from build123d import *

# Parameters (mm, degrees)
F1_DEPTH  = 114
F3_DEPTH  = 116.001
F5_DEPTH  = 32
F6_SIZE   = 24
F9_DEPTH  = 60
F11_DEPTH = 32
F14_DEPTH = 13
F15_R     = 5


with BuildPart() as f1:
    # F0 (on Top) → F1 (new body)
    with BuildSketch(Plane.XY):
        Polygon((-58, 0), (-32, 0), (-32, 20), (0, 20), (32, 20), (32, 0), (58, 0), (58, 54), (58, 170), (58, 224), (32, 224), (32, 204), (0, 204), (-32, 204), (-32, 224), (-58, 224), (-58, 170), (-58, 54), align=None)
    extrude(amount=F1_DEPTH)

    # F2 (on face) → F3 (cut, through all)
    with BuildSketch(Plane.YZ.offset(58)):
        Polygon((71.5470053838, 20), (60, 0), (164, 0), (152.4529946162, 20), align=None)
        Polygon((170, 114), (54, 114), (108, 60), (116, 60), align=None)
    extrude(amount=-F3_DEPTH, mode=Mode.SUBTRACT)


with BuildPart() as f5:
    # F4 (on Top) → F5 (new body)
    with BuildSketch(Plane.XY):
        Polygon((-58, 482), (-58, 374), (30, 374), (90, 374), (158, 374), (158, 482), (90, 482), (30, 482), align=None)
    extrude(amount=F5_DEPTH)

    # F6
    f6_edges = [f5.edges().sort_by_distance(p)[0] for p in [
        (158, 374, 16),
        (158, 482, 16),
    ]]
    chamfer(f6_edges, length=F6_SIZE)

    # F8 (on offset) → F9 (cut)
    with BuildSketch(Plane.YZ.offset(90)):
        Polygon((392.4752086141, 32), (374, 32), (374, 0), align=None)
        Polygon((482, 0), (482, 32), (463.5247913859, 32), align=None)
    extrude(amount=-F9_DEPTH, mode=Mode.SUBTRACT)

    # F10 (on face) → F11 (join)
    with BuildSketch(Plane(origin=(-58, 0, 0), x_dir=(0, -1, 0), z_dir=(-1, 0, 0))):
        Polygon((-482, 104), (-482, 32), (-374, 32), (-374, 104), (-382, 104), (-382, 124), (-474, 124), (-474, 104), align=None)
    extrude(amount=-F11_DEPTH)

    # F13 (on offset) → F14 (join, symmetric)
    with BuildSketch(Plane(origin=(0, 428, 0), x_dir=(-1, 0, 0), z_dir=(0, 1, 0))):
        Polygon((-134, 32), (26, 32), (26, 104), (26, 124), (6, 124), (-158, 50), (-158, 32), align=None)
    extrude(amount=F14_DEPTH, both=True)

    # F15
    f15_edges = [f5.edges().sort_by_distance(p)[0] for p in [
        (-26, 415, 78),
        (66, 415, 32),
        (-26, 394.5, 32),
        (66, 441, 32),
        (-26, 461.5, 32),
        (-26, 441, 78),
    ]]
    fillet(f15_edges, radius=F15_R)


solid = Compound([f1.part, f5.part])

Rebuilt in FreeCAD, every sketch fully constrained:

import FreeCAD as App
import Part
import Sketcher
Q = App.Units.Quantity


def edges_at(feature, points):
    """Names of the edges that pass closest to the given points."""
    edges = feature.Shape.Edges
    near = lambda p: min(range(len(edges)), key=lambda i: edges[i].distToShape(Part.Vertex(*p))[0])
    return sorted({f"Edge{near(p) + 1}" for p in points})


def add_polygon(sketch, points):
    """Adds a closed chain of lines whose ends are joined by coincident constraints."""
    first, n = sketch.GeometryCount, len(points)
    for a, b in zip(points, points[1:] + points[:1]):
        sketch.addGeometry(Part.LineSegment(App.Vector(*a, 0), App.Vector(*b, 0)), False)
    for i in range(n):
        sketch.addConstraint(Sketcher.Constraint("Coincident", first + i, 2, first + (i + 1) % n, 1))

doc = App.newDocument("Part")
params = doc.addObject("Spreadsheet::Sheet", "Params")
for row, (alias, value) in enumerate([
    ("sketch1_width", "26 mm"),
    ("sketch1_width2", "64 mm"),
    ("sketch1_height", "20 mm"),
    ("sketch1_height2", "224 mm"),
    ("pad1_length", "114 mm"),
    ("sketch2_width", "104 mm"),
    ("sketch2_width2", "116 mm"),
    ("sketch2_width3", "8 mm"),
    ("sketch3_width", "216 mm"),
    ("sketch3_height", "108 mm"),
    ("pad2_length", "32 mm"),
    ("chamfer_size", "24 mm"),
    ("sketch4_height", "32 mm"),
    ("pocket2_length", "60 mm"),
    ("sketch5_width", "108 mm"),
    ("sketch5_width2", "8 mm"),
    ("sketch5_height", "72 mm"),
    ("sketch5_height2", "20 mm"),
    ("pad3_length", "32 mm"),
    ("sketch6_width", "20 mm"),
    ("sketch6_width2", "184 mm"),
    ("sketch6_height", "92 mm"),
    ("sketch6_height2", "18 mm"),
    ("pad4_length", "26 mm"),
    ("fillet_radius", "5 mm"),
], start=1):
    params.set(f"A{row}", alias)
    params.set(f"B{row}", "=" + value)
    params.setAlias(f"B{row}", alias)

body = doc.addObject("PartDesign::Body", "Body")

# Sketch on XY plane
sketch1 = body.newObject("Sketcher::SketchObject", "Sketch")
sketch1.AttachmentSupport = (doc.getObject("XY_Plane"), [""])
sketch1.MapMode = "FlatFace"
add_polygon(sketch1, [(-58, 0), (-32, 0), (-32, 20), (32, 20), (32, 0), (58, 0), (58, 224), (32, 224), (32, 204), (-32, 204), (-32, 224), (-58, 224)])  # lines 0-11
sketch1.addConstraint(Sketcher.Constraint("Horizontal", 0))
sketch1.addConstraint(Sketcher.Constraint("Vertical", 1))
sketch1.addConstraint(Sketcher.Constraint("Horizontal", 2))
sketch1.addConstraint(Sketcher.Constraint("Vertical", 3))
sketch1.addConstraint(Sketcher.Constraint("Horizontal", 4))
sketch1.addConstraint(Sketcher.Constraint("Vertical", 5))
sketch1.addConstraint(Sketcher.Constraint("Horizontal", 6))
sketch1.addConstraint(Sketcher.Constraint("Vertical", 7))
sketch1.addConstraint(Sketcher.Constraint("Horizontal", 8))
sketch1.addConstraint(Sketcher.Constraint("Vertical", 9))
sketch1.addConstraint(Sketcher.Constraint("Horizontal", 10))
sketch1.addConstraint(Sketcher.Constraint("Vertical", 11))
sketch1.addConstraint(Sketcher.Constraint("Symmetric", 0, 2, 3, 2, -1, 1))
sketch1.addConstraint(Sketcher.Constraint("Symmetric", 6, 2, 9, 2, -2))
sketch1.addConstraint(Sketcher.Constraint("Symmetric", 4, 2, 11, 2, -2))
sketch1.addConstraint(Sketcher.Constraint("Vertical", 3, 2, 6, 2))
sketch1.addConstraint(Sketcher.Constraint("Equal", 3, 7))
sketch1.addConstraint(Sketcher.Constraint("DistanceX", 0, 1, 0, 2, 26.0))
sketch1.addConstraint(Sketcher.Constraint("DistanceX", 2, 1, 2, 2, 64.0))
sketch1.addConstraint(Sketcher.Constraint("DistanceY", 1, 1, 1, 2, 20.0))
sketch1.addConstraint(Sketcher.Constraint("DistanceY", 5, 1, 5, 2, 224.0))
sketch1.setExpression("Constraints[29]", "Params.sketch1_width")
sketch1.setExpression("Constraints[30]", "Params.sketch1_width2")
sketch1.setExpression("Constraints[31]", "Params.sketch1_height")
sketch1.setExpression("Constraints[32]", "Params.sketch1_height2")
pad1 = body.newObject("PartDesign::Pad", "Pad")
pad1.Profile = sketch1
pad1.setExpression("Length", "Params.pad1_length")

# Sketch on YZ plane
sketch2 = body.newObject("Sketcher::SketchObject", "Sketch001")
sketch2.AttachmentSupport = (doc.getObject("YZ_Plane"), [""])
sketch2.MapMode = "FlatFace"
sketch2.AttachmentOffset = App.Placement(App.Vector(0, 0, 58), App.Rotation())
add_polygon(sketch2, [(71.547005, 20), (60, 0), (164, 0), (152.452995, 20)])  # lines 0-3
add_polygon(sketch2, [(170, 114), (54, 114), (108, 60), (116, 60)])  # lines 4-7
sketch2.addConstraint(Sketcher.Constraint("Horizontal", 1))
sketch2.addConstraint(Sketcher.Constraint("Horizontal", 3))
sketch2.addConstraint(Sketcher.Constraint("Horizontal", 4))
sketch2.addConstraint(Sketcher.Constraint("Horizontal", 6))
sketch2.addConstraint(Sketcher.Constraint("PointOnObject", 0, 2, -1))
sketch2.addConstraint(Sketcher.Constraint("Perpendicular", 5, 7))
sketch2.addConstraint(Sketcher.Constraint("Equal", 0, 2))
sketch2.addConstraint(Sketcher.Constraint("Equal", 5, 7))
sketch2.addConstraint(Sketcher.Constraint("DistanceX", 1, 1, 1, 2, 104.0))
sketch2.addConstraint(Sketcher.Constraint("DistanceX", 4, 2, 4, 1, 116.0))
sketch2.addConstraint(Sketcher.Constraint("DistanceX", 6, 1, 6, 2, 8.0))
sketch2.addConstraint(Sketcher.Constraint("Angle", 0, Q("-120 deg")))
sketch2.addConstraint(Sketcher.Constraint("DistanceX", -1, 1, 0, 2, 60.0))
sketch2.addConstraint(Sketcher.Constraint("DistanceY", -1, 1, 2, 2, 20.0))
sketch2.addConstraint(Sketcher.Constraint("DistanceX", -1, 1, 4, 2, 54.0))
sketch2.addConstraint(Sketcher.Constraint("DistanceY", -1, 1, 4, 2, 114.0))
sketch2.setExpression("Constraints[16]", "Params.sketch2_width")
sketch2.setExpression("Constraints[17]", "Params.sketch2_width2")
sketch2.setExpression("Constraints[18]", "Params.sketch2_width3")
pocket1 = body.newObject("PartDesign::Pocket", "Pocket")
pocket1.Profile = sketch2
pocket1.Type = "ThroughAll"
body2 = doc.addObject("PartDesign::Body", "Body001")

# Sketch on XY plane
sketch3 = body2.newObject("Sketcher::SketchObject", "Sketch002")
sketch3.AttachmentSupport = (doc.getObject("XY_Plane001"), [""])
sketch3.MapMode = "FlatFace"
add_polygon(sketch3, [(-58, 482), (-58, 374), (158, 374), (158, 482)])  # lines 0-3
sketch3.addConstraint(Sketcher.Constraint("Vertical", 0))
sketch3.addConstraint(Sketcher.Constraint("Horizontal", 1))
sketch3.addConstraint(Sketcher.Constraint("Vertical", 2))
sketch3.addConstraint(Sketcher.Constraint("Horizontal", 3))
sketch3.addConstraint(Sketcher.Constraint("DistanceX", 1, 1, 1, 2, 216.0))
sketch3.addConstraint(Sketcher.Constraint("DistanceY", 0, 2, 0, 1, 108.0))
sketch3.addConstraint(Sketcher.Constraint("DistanceX", 0, 2, -1, 1, 58.0))
sketch3.addConstraint(Sketcher.Constraint("DistanceY", -1, 1, 0, 2, 374.0))
sketch3.setExpression("Constraints[8]", "Params.sketch3_width")
sketch3.setExpression("Constraints[9]", "Params.sketch3_height")
pad2 = body2.newObject("PartDesign::Pad", "Pad001")
pad2.Profile = sketch3
pad2.setExpression("Length", "Params.pad2_length")
doc.recompute()

chamfer = body2.newObject("PartDesign::Chamfer", "Chamfer")
chamfer.Base = (pad2, edges_at(pad2, [(158, 374, 16), (158, 482, 16)]))
chamfer.setExpression("Size", "Params.chamfer_size")

# Sketch on YZ plane
sketch4 = body2.newObject("Sketcher::SketchObject", "Sketch003")
sketch4.AttachmentSupport = (doc.getObject("YZ_Plane001"), [""])
sketch4.MapMode = "FlatFace"
sketch4.AttachmentOffset = App.Placement(App.Vector(0, 0, 90), App.Rotation())
add_polygon(sketch4, [(392.475209, 32), (374, 32), (374, 0)])  # lines 0-2
add_polygon(sketch4, [(482, 0), (482, 32), (463.524791, 32)])  # lines 3-5
sketch4.addConstraint(Sketcher.Constraint("Horizontal", 0))
sketch4.addConstraint(Sketcher.Constraint("Vertical", 1))
sketch4.addConstraint(Sketcher.Constraint("Vertical", 3))
sketch4.addConstraint(Sketcher.Constraint("Horizontal", 4))
sketch4.addConstraint(Sketcher.Constraint("PointOnObject", 1, 2, -1))
sketch4.addConstraint(Sketcher.Constraint("PointOnObject", 5, 2, -1))
sketch4.addConstraint(Sketcher.Constraint("Horizontal", 2, 2, 3, 2))
sketch4.addConstraint(Sketcher.Constraint("Equal", 0, 4))
sketch4.addConstraint(Sketcher.Constraint("DistanceY", 1, 2, 1, 1, 32.0))
sketch4.addConstraint(Sketcher.Constraint("Angle", 2, Q("60 deg")))
sketch4.addConstraint(Sketcher.Constraint("DistanceX", -1, 1, 0, 2, 374.0))
sketch4.addConstraint(Sketcher.Constraint("DistanceX", -1, 1, 3, 2, 482.0))
sketch4.setExpression("Constraints[14]", "Params.sketch4_height")
pocket2 = body2.newObject("PartDesign::Pocket", "Pocket001")
pocket2.Profile = sketch4
pocket2.setExpression("Length", "Params.pocket2_length")

# Sketch on YZ plane
sketch5 = body2.newObject("Sketcher::SketchObject", "Sketch004")
sketch5.AttachmentSupport = (doc.getObject("YZ_Plane001"), [""])
sketch5.MapMode = "FlatFace"
sketch5.AttachmentOffset = App.Placement(App.Vector(0, 0, -58), App.Rotation())
add_polygon(sketch5, [(482, 104), (482, 32), (374, 32), (374, 104), (382, 104), (382, 124), (474, 124), (474, 104)])  # lines 0-7
sketch5.addConstraint(Sketcher.Constraint("Vertical", 0))
sketch5.addConstraint(Sketcher.Constraint("Horizontal", 1))
sketch5.addConstraint(Sketcher.Constraint("Vertical", 2))
sketch5.addConstraint(Sketcher.Constraint("Horizontal", 3))
sketch5.addConstraint(Sketcher.Constraint("Vertical", 4))
sketch5.addConstraint(Sketcher.Constraint("Horizontal", 5))
sketch5.addConstraint(Sketcher.Constraint("Vertical", 6))
sketch5.addConstraint(Sketcher.Constraint("Horizontal", 7))
sketch5.addConstraint(Sketcher.Constraint("Horizontal", 3, 2, 6, 2))
sketch5.addConstraint(Sketcher.Constraint("Equal", 3, 7))
sketch5.addConstraint(Sketcher.Constraint("DistanceX", 1, 2, 1, 1, 108.0))
sketch5.addConstraint(Sketcher.Constraint("DistanceX", 3, 1, 3, 2, 8.0))
sketch5.addConstraint(Sketcher.Constraint("DistanceY", 0, 2, 0, 1, 72.0))
sketch5.addConstraint(Sketcher.Constraint("DistanceY", 4, 1, 4, 2, 20.0))
sketch5.addConstraint(Sketcher.Constraint("DistanceX", -1, 1, 0, 2, 482.0))
sketch5.addConstraint(Sketcher.Constraint("DistanceY", -1, 1, 0, 2, 32.0))
sketch5.setExpression("Constraints[18]", "Params.sketch5_width")
sketch5.setExpression("Constraints[19]", "Params.sketch5_width2")
sketch5.setExpression("Constraints[20]", "Params.sketch5_height")
sketch5.setExpression("Constraints[21]", "Params.sketch5_height2")
pad3 = body2.newObject("PartDesign::Pad", "Pad002")
pad3.Profile = sketch5
pad3.setExpression("Length", "Params.pad3_length")

# Sketch on XZ plane
sketch6 = body2.newObject("Sketcher::SketchObject", "Sketch005")
sketch6.AttachmentSupport = (doc.getObject("XZ_Plane001"), [""])
sketch6.MapMode = "FlatFace"
sketch6.AttachmentOffset = App.Placement(App.Vector(0, 0, -428), App.Rotation())
add_polygon(sketch6, [(-26, 32), (-26, 124), (-6, 124), (158, 50), (158, 32)])  # lines 0-4
sketch6.addConstraint(Sketcher.Constraint("Vertical", 0))
sketch6.addConstraint(Sketcher.Constraint("Horizontal", 1))
sketch6.addConstraint(Sketcher.Constraint("Vertical", 3))
sketch6.addConstraint(Sketcher.Constraint("Horizontal", 4))
sketch6.addConstraint(Sketcher.Constraint("DistanceX", 1, 1, 1, 2, 20.0))
sketch6.addConstraint(Sketcher.Constraint("DistanceX", 4, 2, 4, 1, 184.0))
sketch6.addConstraint(Sketcher.Constraint("DistanceY", 0, 1, 0, 2, 92.0))
sketch6.addConstraint(Sketcher.Constraint("DistanceY", 3, 2, 3, 1, 18.0))
sketch6.addConstraint(Sketcher.Constraint("DistanceX", 0, 2, -1, 1, 26.0))
sketch6.addConstraint(Sketcher.Constraint("DistanceY", -1, 1, 0, 2, 124.0))
sketch6.setExpression("Constraints[9]", "Params.sketch6_width")
sketch6.setExpression("Constraints[10]", "Params.sketch6_width2")
sketch6.setExpression("Constraints[11]", "Params.sketch6_height")
sketch6.setExpression("Constraints[12]", "Params.sketch6_height2")
pad4 = body2.newObject("PartDesign::Pad", "Pad003")
pad4.Profile = sketch6
pad4.setExpression("Length", "Params.pad4_length")
pad4.Midplane = True
doc.recompute()

fillet = body2.newObject("PartDesign::Fillet", "Fillet")
fillet.Base = (pad4, edges_at(pad4, [
    (-26, 415, 78),
    (66, 415, 32),
    (-26, 394.5, 32),
    (66, 441, 32),
    (-26, 461.5, 32),
    (-26, 441, 78),
]))
fillet.setExpression("Radius", "Params.fillet_radius")

doc.recompute()
